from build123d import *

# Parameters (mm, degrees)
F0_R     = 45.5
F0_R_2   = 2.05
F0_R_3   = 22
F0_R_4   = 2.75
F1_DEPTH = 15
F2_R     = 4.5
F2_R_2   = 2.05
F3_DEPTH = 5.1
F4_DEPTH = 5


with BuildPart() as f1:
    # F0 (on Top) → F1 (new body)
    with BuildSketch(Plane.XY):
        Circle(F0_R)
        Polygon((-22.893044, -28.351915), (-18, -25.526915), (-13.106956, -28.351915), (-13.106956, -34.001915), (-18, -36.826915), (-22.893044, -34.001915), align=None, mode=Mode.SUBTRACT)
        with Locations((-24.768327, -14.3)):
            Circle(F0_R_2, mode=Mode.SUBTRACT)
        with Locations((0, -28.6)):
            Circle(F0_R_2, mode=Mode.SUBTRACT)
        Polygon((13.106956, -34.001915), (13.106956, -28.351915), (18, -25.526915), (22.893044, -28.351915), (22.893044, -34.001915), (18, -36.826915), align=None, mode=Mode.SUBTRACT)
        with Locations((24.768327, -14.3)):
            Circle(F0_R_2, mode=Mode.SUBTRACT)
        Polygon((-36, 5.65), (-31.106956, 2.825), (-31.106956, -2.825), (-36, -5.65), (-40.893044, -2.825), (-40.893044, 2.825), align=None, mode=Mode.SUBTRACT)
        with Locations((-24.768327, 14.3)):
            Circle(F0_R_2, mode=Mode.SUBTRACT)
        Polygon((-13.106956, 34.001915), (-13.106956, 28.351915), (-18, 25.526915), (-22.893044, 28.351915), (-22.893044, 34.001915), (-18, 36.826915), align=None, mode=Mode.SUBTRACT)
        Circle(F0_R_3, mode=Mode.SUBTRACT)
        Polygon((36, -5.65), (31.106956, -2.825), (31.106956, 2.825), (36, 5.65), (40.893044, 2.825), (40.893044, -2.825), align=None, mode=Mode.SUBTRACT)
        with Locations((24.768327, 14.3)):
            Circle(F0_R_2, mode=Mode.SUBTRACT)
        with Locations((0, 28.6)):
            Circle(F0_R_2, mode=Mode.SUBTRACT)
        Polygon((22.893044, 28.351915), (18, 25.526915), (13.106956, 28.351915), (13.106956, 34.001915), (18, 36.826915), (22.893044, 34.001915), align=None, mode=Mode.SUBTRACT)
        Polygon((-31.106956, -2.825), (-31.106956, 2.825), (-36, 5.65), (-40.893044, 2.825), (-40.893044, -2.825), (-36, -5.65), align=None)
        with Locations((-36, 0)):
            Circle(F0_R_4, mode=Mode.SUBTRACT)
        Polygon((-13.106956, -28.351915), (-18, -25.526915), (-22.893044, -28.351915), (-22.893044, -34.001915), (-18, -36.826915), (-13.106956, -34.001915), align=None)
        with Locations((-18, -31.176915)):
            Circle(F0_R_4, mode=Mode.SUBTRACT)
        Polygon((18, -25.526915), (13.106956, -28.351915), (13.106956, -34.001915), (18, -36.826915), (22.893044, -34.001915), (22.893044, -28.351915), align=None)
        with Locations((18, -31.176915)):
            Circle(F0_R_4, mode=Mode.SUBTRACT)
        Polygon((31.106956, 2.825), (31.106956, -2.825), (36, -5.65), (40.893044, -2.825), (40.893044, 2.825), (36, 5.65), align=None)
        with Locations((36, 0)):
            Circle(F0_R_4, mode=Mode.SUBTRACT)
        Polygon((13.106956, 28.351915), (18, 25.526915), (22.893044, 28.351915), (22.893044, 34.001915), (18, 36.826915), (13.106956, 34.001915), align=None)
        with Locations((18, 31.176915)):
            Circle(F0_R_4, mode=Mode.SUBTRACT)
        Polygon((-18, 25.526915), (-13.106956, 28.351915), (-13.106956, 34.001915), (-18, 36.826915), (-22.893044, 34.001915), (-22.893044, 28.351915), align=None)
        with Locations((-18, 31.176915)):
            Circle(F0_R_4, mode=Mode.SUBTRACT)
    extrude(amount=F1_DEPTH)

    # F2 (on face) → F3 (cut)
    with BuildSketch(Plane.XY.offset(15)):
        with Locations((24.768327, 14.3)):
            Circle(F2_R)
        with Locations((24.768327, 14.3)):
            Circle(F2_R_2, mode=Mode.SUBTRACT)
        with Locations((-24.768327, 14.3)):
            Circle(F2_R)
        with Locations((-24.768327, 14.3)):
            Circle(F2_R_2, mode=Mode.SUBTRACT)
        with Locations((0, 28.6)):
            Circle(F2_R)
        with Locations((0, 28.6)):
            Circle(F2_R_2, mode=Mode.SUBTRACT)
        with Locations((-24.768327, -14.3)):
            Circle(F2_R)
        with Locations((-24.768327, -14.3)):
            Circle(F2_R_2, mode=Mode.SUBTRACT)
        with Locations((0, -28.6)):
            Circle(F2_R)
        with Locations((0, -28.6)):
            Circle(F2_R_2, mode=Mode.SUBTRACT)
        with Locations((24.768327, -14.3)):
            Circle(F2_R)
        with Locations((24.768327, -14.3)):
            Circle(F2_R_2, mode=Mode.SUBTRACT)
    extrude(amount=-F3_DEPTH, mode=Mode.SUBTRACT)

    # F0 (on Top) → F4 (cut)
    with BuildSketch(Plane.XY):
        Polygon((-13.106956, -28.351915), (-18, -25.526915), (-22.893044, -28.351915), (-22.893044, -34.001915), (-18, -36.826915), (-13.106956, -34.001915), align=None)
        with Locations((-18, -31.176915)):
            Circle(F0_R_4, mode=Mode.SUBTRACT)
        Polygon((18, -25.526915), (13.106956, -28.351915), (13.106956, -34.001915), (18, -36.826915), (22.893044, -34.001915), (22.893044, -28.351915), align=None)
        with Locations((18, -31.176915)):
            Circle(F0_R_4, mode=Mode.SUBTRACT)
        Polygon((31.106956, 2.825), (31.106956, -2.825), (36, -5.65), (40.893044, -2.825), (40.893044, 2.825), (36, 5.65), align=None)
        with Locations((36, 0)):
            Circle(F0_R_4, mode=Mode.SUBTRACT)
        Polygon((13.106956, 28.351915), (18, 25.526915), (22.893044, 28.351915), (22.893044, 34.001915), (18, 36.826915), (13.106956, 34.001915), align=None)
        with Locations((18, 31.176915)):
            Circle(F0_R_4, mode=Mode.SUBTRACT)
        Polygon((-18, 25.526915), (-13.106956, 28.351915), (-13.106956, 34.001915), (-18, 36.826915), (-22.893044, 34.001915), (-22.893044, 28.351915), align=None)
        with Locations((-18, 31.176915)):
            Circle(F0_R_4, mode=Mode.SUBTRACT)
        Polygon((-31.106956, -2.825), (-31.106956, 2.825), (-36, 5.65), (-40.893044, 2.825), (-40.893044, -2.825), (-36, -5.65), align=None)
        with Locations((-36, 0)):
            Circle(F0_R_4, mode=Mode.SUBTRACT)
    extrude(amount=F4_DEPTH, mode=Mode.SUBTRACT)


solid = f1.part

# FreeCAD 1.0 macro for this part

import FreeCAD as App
import Part
import Sketcher
from FreeCAD import Vector
Q = App.Units.Quantity

doc = App.newDocument("Part")
body = doc.addObject("PartDesign::Body", "Body")

# Sketch on XY plane
sketch1 = doc.addObject("Sketcher::SketchObject", "Sketch")
body.addObject(sketch1)
sketch1.AttachmentSupport = (doc.XY_Plane, [""])
sketch1.MapMode = "FlatFace"
sketch1.addGeometry([
    Part.Circle(Vector(0, 0, 0), Vector(0, 0, 1), 45.5),  # 0
    Part.Circle(Vector(-18, -31.2, 0), Vector(0, 0, 1), 2.8),  # 1
    Part.Circle(Vector(-24.8, -14.3, 0), Vector(0, 0, 1), 2),  # 2
    Part.Circle(Vector(0, -28.6, 0), Vector(0, 0, 1), 2),  # 3
    Part.Circle(Vector(18, -31.2, 0), Vector(0, 0, 1), 2.8),  # 4
    Part.Circle(Vector(24.8, -14.3, 0), Vector(0, 0, 1), 2),  # 5
    Part.Circle(Vector(-36, 0, 0), Vector(0, 0, 1), 2.8),  # 6
    Part.Circle(Vector(-24.8, 14.3, 0), Vector(0, 0, 1), 2),  # 7
    Part.Circle(Vector(-18, 31.2, 0), Vector(0, 0, 1), 2.8),  # 8
    Part.Circle(Vector(0, 0, 0), Vector(0, 0, 1), 22),  # 9
    Part.Circle(Vector(36, 0, 0), Vector(0, 0, 1), 2.8),  # 10
    Part.Circle(Vector(24.8, 14.3, 0), Vector(0, 0, 1), 2),  # 11
    Part.Circle(Vector(0, 28.6, 0), Vector(0, 0, 1), 2),  # 12
    Part.Circle(Vector(18, 31.2, 0), Vector(0, 0, 1), 2.8),  # 13
], False)
sketch1.addConstraint([
    Sketcher.Constraint("Coincident", 0, 3, -1, 1),
    Sketcher.Constraint("Coincident", 9, 3, -1, 1),
    Sketcher.Constraint("Equal", 2, 3),
    Sketcher.Constraint("Equal", 1, 4),
    Sketcher.Constraint("Equal", 3, 5),
    Sketcher.Constraint("Equal", 4, 6),
    Sketcher.Constraint("Equal", 5, 7),
    Sketcher.Constraint("Equal", 6, 8),
    Sketcher.Constraint("Equal", 8, 10),
    Sketcher.Constraint("Equal", 7, 11),
    Sketcher.Constraint("Equal", 11, 12),
    Sketcher.Constraint("Equal", 10, 13),
    Sketcher.Constraint("Symmetric", 5, 3, 7, 3, -1, 1),
    Sketcher.Constraint("Symmetric", 4, 3, 8, 3, -1, 1),
    Sketcher.Constraint("Symmetric", 6, 3, 10, 3, -1, 1),
    Sketcher.Constraint("Symmetric", 2, 3, 11, 3, -1, 1),
    Sketcher.Constraint("Symmetric", 3, 3, 12, 3, -1, 1),
    Sketcher.Constraint("Symmetric", 1, 3, 13, 3, -1, 1),
    Sketcher.Constraint("Symmetric", 1, 3, 4, 3, -2),
    Sketcher.Constraint("Symmetric", 2, 3, 5, 3, -2),
    Sketcher.Constraint("PointOnObject", 3, 3, -2),
    Sketcher.Constraint("PointOnObject", 6, 3, -1),
    Sketcher.Constraint("Diameter", 0, 91.0),
    Sketcher.Constraint("Diameter", 9, 44.0),
    Sketcher.Constraint("Diameter", 1, 5.5),
    Sketcher.Constraint("Diameter", 2, 4.1),
    Sketcher.Constraint("DistanceX", 1, 3, -1, 1, 18.0),
    Sketcher.Constraint("DistanceX", 6, 3, -1, 1, 36.0),
    Sketcher.Constraint("DistanceY", 2, 3, -1, 1, 14.3),
    Sketcher.Constraint("DistanceY", 3, 3, -1, 1, 28.6),
    Sketcher.Constraint("DistanceY", 1, 3, 8, 3, 62.35383),
    Sketcher.Constraint("DistanceX", 2, 3, -1, 1, 24.768327),
])
pad1 = doc.addObject("PartDesign::Pad", "Pad")
body.addObject(pad1)
pad1.Profile = sketch1
pad1.Length = 15

# Sketch on XY plane
sketch2 = doc.addObject("Sketcher::SketchObject", "Sketch001")
body.addObject(sketch2)
sketch2.AttachmentSupport = (doc.XY_Plane, [""])
sketch2.MapMode = "FlatFace"
sketch2.AttachmentOffset = App.Placement(Vector(0, 0, 15), App.Rotation())
sketch2.addGeometry([
    Part.Circle(Vector(24.8, 14.3, 0), Vector(0, 0, 1), 4.5),  # 0
    Part.Circle(Vector(24.8, 14.3, 0), Vector(0, 0, 1), 2),  # 1
    Part.Circle(Vector(-24.8, 14.3, 0), Vector(0, 0, 1), 4.5),  # 2
    Part.Circle(Vector(-24.8, 14.3, 0), Vector(0, 0, 1), 2),  # 3
    Part.Circle(Vector(0, 28.6, 0), Vector(0, 0, 1), 4.5),  # 4
    Part.Circle(Vector(0, 28.6, 0), Vector(0, 0, 1), 2),  # 5
    Part.Circle(Vector(-24.8, -14.3, 0), Vector(0, 0, 1), 4.5),  # 6
    Part.Circle(Vector(-24.8, -14.3, 0), Vector(0, 0, 1), 2),  # 7
    Part.Circle(Vector(0, -28.6, 0), Vector(0, 0, 1), 4.5),  # 8
    Part.Circle(Vector(0, -28.6, 0), Vector(0, 0, 1), 2),  # 9
    Part.Circle(Vector(24.8, -14.3, 0), Vector(0, 0, 1), 4.5),  # 10
    Part.Circle(Vector(24.8, -14.3, 0), Vector(0, 0, 1), 2),  # 11
], False)
sketch2.addConstraint([
    Sketcher.Constraint("Coincident", 1, 3, 0, 3),
    Sketcher.Constraint("Coincident", 3, 3, 2, 3),
    Sketcher.Constraint("Coincident", 5, 3, 4, 3),
    Sketcher.Constraint("Coincident", 7, 3, 6, 3),
    Sketcher.Constraint("Coincident", 9, 3, 8, 3),
    Sketcher.Constraint("Coincident", 11, 3, 10, 3),
    Sketcher.Constraint("Equal", 0, 2),
    Sketcher.Constraint("Equal", 1, 3),
    Sketcher.Constraint("Equal", 2, 4),
    Sketcher.Constraint("Equal", 3, 5),
    Sketcher.Constraint("Equal", 4, 6),
    Sketcher.Constraint("Equal", 5, 7),
    Sketcher.Constraint("Equal", 6, 8),
    Sketcher.Constraint("Equal", 7, 9),
    Sketcher.Constraint("Equal", 8, 10),
    Sketcher.Constraint("Equal", 9, 11),
    Sketcher.Constraint("Symmetric", 0, 3, 6, 3, -1, 1),
    Sketcher.Constraint("Symmetric", 4, 3, 8, 3, -1, 1),
    Sketcher.Constraint("Symmetric", 2, 3, 10, 3, -1, 1),
    Sketcher.Constraint("Symmetric", 0, 3, 2, 3, -2),
    Sketcher.Constraint("PointOnObject", 4, 3, -2),
    Sketcher.Constraint("Diameter", 0, 9.0),
    Sketcher.Constraint("Diameter", 1, 4.1),
    Sketcher.Constraint("DistanceY", -1, 1, 0, 3, 14.3),
    Sketcher.Constraint("DistanceY", -1, 1, 4, 3, 28.6),
    Sketcher.Constraint("DistanceX", -1, 1, 0, 3, 24.768327),
])
pocket1 = doc.addObject("PartDesign::Pocket", "Pocket")
body.addObject(pocket1)
pocket1.Profile = sketch2
pocket1.Length = 5.1

# Sketch on XY plane
sketch3 = doc.addObject("Sketcher::SketchObject", "Sketch002")
body.addObject(sketch3)
sketch3.AttachmentSupport = (doc.XY_Plane, [""])
sketch3.MapMode = "FlatFace"
sketch3.addGeometry([
    Part.LineSegment(Vector(-13.1, -28.4, 0), Vector(-18, -25.5, 0)),  # 0
    Part.LineSegment(Vector(-18, -25.5, 0), Vector(-22.9, -28.4, 0)),  # 1
    Part.LineSegment(Vector(-22.9, -28.4, 0), Vector(-22.9, -34, 0)),  # 2
    Part.LineSegment(Vector(-22.9, -34, 0), Vector(-18, -36.8, 0)),  # 3
    Part.LineSegment(Vector(-18, -36.8, 0), Vector(-13.1, -34, 0)),  # 4
    Part.LineSegment(Vector(-13.1, -34, 0), Vector(-13.1, -28.4, 0)),  # 5
    Part.Circle(Vector(-18, -31.2, 0), Vector(0, 0, 1), 2.8),  # 6
    Part.LineSegment(Vector(18, -25.5, 0), Vector(13.1, -28.4, 0)),  # 7
    Part.LineSegment(Vector(13.1, -28.4, 0), Vector(13.1, -34, 0)),  # 8
    Part.LineSegment(Vector(13.1, -34, 0), Vector(18, -36.8, 0)),  # 9
    Part.LineSegment(Vector(18, -36.8, 0), Vector(22.9, -34, 0)),  # 10
    Part.LineSegment(Vector(22.9, -34, 0), Vector(22.9, -28.4, 0)),  # 11
    Part.LineSegment(Vector(22.9, -28.4, 0), Vector(18, -25.5, 0)),  # 12
    Part.Circle(Vector(18, -31.2, 0), Vector(0, 0, 1), 2.8),  # 13
    Part.LineSegment(Vector(31.1, 2.8, 0), Vector(31.1, -2.8, 0)),  # 14
    Part.LineSegment(Vector(31.1, -2.8, 0), Vector(36, -5.7, 0)),  # 15
    Part.LineSegment(Vector(36, -5.7, 0), Vector(40.9, -2.8, 0)),  # 16
    Part.LineSegment(Vector(40.9, -2.8, 0), Vector(40.9, 2.8, 0)),  # 17
    Part.LineSegment(Vector(40.9, 2.8, 0), Vector(36, 5.7, 0)),  # 18
    Part.LineSegment(Vector(36, 5.7, 0), Vector(31.1, 2.8, 0)),  # 19
    Part.Circle(Vector(36, 0, 0), Vector(0, 0, 1), 2.8),  # 20
    Part.LineSegment(Vector(13.1, 28.4, 0), Vector(18, 25.5, 0)),  # 21
    Part.LineSegment(Vector(18, 25.5, 0), Vector(22.9, 28.4, 0)),  # 22
    Part.LineSegment(Vector(22.9, 28.4, 0), Vector(22.9, 34, 0)),  # 23
    Part.LineSegment(Vector(22.9, 34, 0), Vector(18, 36.8, 0)),  # 24
    Part.LineSegment(Vector(18, 36.8, 0), Vector(13.1, 34, 0)),  # 25
    Part.LineSegment(Vector(13.1, 34, 0), Vector(13.1, 28.4, 0)),  # 26
    Part.Circle(Vector(18, 31.2, 0), Vector(0, 0, 1), 2.8),  # 27
    Part.LineSegment(Vector(-18, 25.5, 0), Vector(-13.1, 28.4, 0)),  # 28
    Part.LineSegment(Vector(-13.1, 28.4, 0), Vector(-13.1, 34, 0)),  # 29
    Part.LineSegment(Vector(-13.1, 34, 0), Vector(-18, 36.8, 0)),  # 30
    Part.LineSegment(Vector(-18, 36.8, 0), Vector(-22.9, 34, 0)),  # 31
    Part.LineSegment(Vector(-22.9, 34, 0), Vector(-22.9, 28.4, 0)),  # 32
    Part.LineSegment(Vector(-22.9, 28.4, 0), Vector(-18, 25.5, 0)),  # 33
    Part.Circle(Vector(-18, 31.2, 0), Vector(0, 0, 1), 2.8),  # 34
    Part.LineSegment(Vector(-31.1, -2.8, 0), Vector(-31.1, 2.8, 0)),  # 35
    Part.LineSegment(Vector(-31.1, 2.8, 0), Vector(-36, 5.7, 0)),  # 36
    Part.LineSegment(Vector(-36, 5.7, 0), Vector(-40.9, 2.8, 0)),  # 37
    Part.LineSegment(Vector(-40.9, 2.8, 0), Vector(-40.9, -2.8, 0)),  # 38
    Part.LineSegment(Vector(-40.9, -2.8, 0), Vector(-36, -5.7, 0)),  # 39
    Part.LineSegment(Vector(-36, -5.7, 0), Vector(-31.1, -2.8, 0)),  # 40
    Part.Circle(Vector(-36, 0, 0), Vector(0, 0, 1), 2.8),  # 41
], False)
sketch3.addConstraint([
    Sketcher.Constraint("Coincident", 0, 2, 1, 1),
    Sketcher.Constraint("Coincident", 1, 2, 2, 1),
    Sketcher.Constraint("Coincident", 2, 2, 3, 1),
    Sketcher.Constraint("Coincident", 3, 2, 4, 1),
    Sketcher.Constraint("Coincident", 4, 2, 5, 1),
    Sketcher.Constraint("Coincident", 5, 2, 0, 1),
    Sketcher.Constraint("Coincident", 7, 2, 8, 1),
    Sketcher.Constraint("Coincident", 8, 2, 9, 1),
    Sketcher.Constraint("Coincident", 9, 2, 10, 1),
    Sketcher.Constraint("Coincident", 10, 2, 11, 1),
    Sketcher.Constraint("Coincident", 11, 2, 12, 1),
    Sketcher.Constraint("Coincident", 12, 2, 7, 1),
    Sketcher.Constraint("Coincident", 14, 2, 15, 1),
    Sketcher.Constraint("Coincident", 15, 2, 16, 1),
    Sketcher.Constraint("Coincident", 16, 2, 17, 1),
    Sketcher.Constraint("Coincident", 17, 2, 18, 1),
    Sketcher.Constraint("Coincident", 18, 2, 19, 1),
    Sketcher.Constraint("Coincident", 19, 2, 14, 1),
    Sketcher.Constraint("Coincident", 21, 2, 22, 1),
    Sketcher.Constraint("Coincident", 22, 2, 23, 1),
    Sketcher.Constraint("Coincident", 23, 2, 24, 1),
    Sketcher.Constraint("Coincident", 24, 2, 25, 1),
    Sketcher.Constraint("Coincident", 25, 2, 26, 1),
    Sketcher.Constraint("Coincident", 26, 2, 21, 1),
    Sketcher.Constraint("Coincident", 28, 2, 29, 1),
    Sketcher.Constraint("Coincident", 29, 2, 30, 1),
    Sketcher.Constraint("Coincident", 30, 2, 31, 1),
    Sketcher.Constraint("Coincident", 31, 2, 32, 1),
    Sketcher.Constraint("Coincident", 32, 2, 33, 1),
    Sketcher.Constraint("Coincident", 33, 2, 28, 1),
    Sketcher.Constraint("Coincident", 35, 2, 36, 1),
    Sketcher.Constraint("Coincident", 36, 2, 37, 1),
    Sketcher.Constraint("Coincident", 37, 2, 38, 1),
    Sketcher.Constraint("Coincident", 38, 2, 39, 1),
    Sketcher.Constraint("Coincident", 39, 2, 40, 1),
    Sketcher.Constraint("Coincident", 40, 2, 35, 1),
    Sketcher.Constraint("Vertical", 2),
    Sketcher.Constraint("Vertical", 5),
    Sketcher.Constraint("Vertical", 8),
    Sketcher.Constraint("Vertical", 11),
    Sketcher.Constraint("Vertical", 14),
    Sketcher.Constraint("Vertical", 17),
    Sketcher.Constraint("Vertical", 23),
    Sketcher.Constraint("Vertical", 26),
    Sketcher.Constraint("Vertical", 29),
    Sketcher.Constraint("Vertical", 32),
    Sketcher.Constraint("Vertical", 35),
    Sketcher.Constraint("Vertical", 38),
    Sketcher.Constraint("Equal", 6, 13),
    Sketcher.Constraint("Equal", 13, 20),
    Sketcher.Constraint("Equal", 20, 27),
    Sketcher.Constraint("Equal", 27, 34),
    Sketcher.Constraint("Equal", 34, 41),
    Sketcher.Constraint("Symmetric", 6, 3, 27, 3, -1, 1),
    Sketcher.Constraint("Symmetric", 13, 3, 34, 3, -1, 1),
    Sketcher.Constraint("Symmetric", 20, 3, 41, 3, -1, 1),
    Sketcher.Constraint("Symmetric", 0, 2, 21, 2, -1, 1),
    Sketcher.Constraint("Symmetric", 1, 2, 22, 2, -1, 1),
    Sketcher.Constraint("Symmetric", 3, 2, 24, 2, -1, 1),
    Sketcher.Constraint("Symmetric", 4, 2, 25, 2, -1, 1),
    Sketcher.Constraint("Symmetric", 7, 2, 28, 2, -1, 1),
    Sketcher.Constraint("Symmetric", 9, 2, 30, 2, -1, 1),
    Sketcher.Constraint("Symmetric", 10, 2, 31, 2, -1, 1),
    Sketcher.Constraint("Symmetric", 12, 2, 33, 2, -1, 1),
    Sketcher.Constraint("Symmetric", 14, 2, 35, 2, -1, 1),
    Sketcher.Constraint("Symmetric", 15, 2, 36, 2, -1, 1),
    Sketcher.Constraint("Symmetric", 16, 2, 37, 2, -1, 1),
    Sketcher.Constraint("Symmetric", 18, 2, 39, 2, -1, 1),
    Sketcher.Constraint("Symmetric", 6, 3, 13, 3, -2),
    Sketcher.Constraint("Symmetric", 5, 2, 7, 2, -2),
    Sketcher.Constraint("Symmetric", 3, 2, 9, 2, -2),
    Sketcher.Constraint("Symmetric", 2, 2, 10, 2, -2),
    Sketcher.Constraint("Symmetric", 0, 2, 12, 2, -2),
    Sketcher.Constraint("Symmetric", 18, 2, 36, 2, -2),
    Sketcher.Constraint("PointOnObject", 20, 3, -1),
    Sketcher.Constraint("Parallel", 0, 3),
    Sketcher.Constraint("Parallel", 1, 4),
    Sketcher.Constraint("Parallel", 4, 7),
    Sketcher.Constraint("Parallel", 3, 9),
    Sketcher.Constraint("Parallel", 9, 12),
    Sketcher.Constraint("Parallel", 12, 15),
    Sketcher.Constraint("Parallel", 10, 16),
    Sketcher.Constraint("Parallel", 15, 18),
    Sketcher.Constraint("Parallel", 16, 19),
    Sketcher.Constraint("Parallel", 18, 21),
    Sketcher.Constraint("Parallel", 21, 24),
    Sketcher.Constraint("Parallel", 24, 30),
    Sketcher.Constraint("Parallel", 30, 33),
    Sketcher.Constraint("Parallel", 36, 39),
    Sketcher.Constraint("Parallel", 37, 40),
    Sketcher.Constraint("Horizontal", 2, 2, 4, 2),
    Sketcher.Constraint("Horizontal", 1, 2, 5, 2),
    Sketcher.Constraint("Horizontal", 14, 2, 16, 2),
    Sketcher.Constraint("Vertical", 34, 3, 0, 2),
    Sketcher.Constraint("Vertical", 20, 3, 15, 2),
    Sketcher.Constraint("Equal", 11, 14),
    Sketcher.Constraint("Equal", 12, 15),
    Sketcher.Constraint("Diameter", 6, 5.5),
    Sketcher.Constraint("Angle", 0, Q("150.000002 deg")),
    Sketcher.Constraint("DistanceX", 6, 3, -1, 1, 18.0),
    Sketcher.Constraint("DistanceX", -1, 1, 20, 3, 36.0),
    Sketcher.Constraint("DistanceY", 2, 2, 2, 1, 5.65),
    Sketcher.Constraint("DistanceY", 3, 2, 0, 2, 11.3),
    Sketcher.Constraint("DistanceY", 6, 3, 0, 2, 5.65),
    Sketcher.Constraint("DistanceY", 13, 3, 27, 3, 62.35383),
])
pocket2 = doc.addObject("PartDesign::Pocket", "Pocket001")
body.addObject(pocket2)
pocket2.Profile = sketch3
pocket2.Length = 5
pocket2.Reversed = True

doc.recompute()
